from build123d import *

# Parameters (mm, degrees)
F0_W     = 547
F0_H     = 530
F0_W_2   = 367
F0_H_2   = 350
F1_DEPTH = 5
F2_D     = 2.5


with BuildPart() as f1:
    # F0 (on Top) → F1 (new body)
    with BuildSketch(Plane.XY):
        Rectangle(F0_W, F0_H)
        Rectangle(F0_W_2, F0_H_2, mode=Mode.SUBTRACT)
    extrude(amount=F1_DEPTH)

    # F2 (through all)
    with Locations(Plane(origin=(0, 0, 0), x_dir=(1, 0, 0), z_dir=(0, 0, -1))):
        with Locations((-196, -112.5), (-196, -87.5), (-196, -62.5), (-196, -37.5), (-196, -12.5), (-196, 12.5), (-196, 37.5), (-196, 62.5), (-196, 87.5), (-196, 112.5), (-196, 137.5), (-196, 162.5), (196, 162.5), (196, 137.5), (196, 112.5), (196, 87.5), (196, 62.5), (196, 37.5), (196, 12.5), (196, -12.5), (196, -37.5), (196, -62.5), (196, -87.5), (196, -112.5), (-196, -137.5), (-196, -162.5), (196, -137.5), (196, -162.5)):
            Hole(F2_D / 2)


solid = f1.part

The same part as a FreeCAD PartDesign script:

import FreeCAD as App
import Part
import Sketcher
from FreeCAD import Vector
Q = App.Units.Quantity

doc = App.newDocument("Part")
params = doc.addObject("Spreadsheet::Sheet", "Params")
for row, (alias, value) in enumerate([
    ("sketch1_width", "547 mm"),
    ("sketch1_width2", "367 mm"),
    ("sketch1_height", "530 mm"),
    ("sketch1_height2", "350 mm"),
    ("pad1_length", "5 mm"),
    ("sketch2_diameter", "2.5 mm"),
    ("hole_diameter", "2.5 mm"),
], start=1):
    params.set(f"A{row}", alias)
    params.set(f"B{row}", "=" + value)
    params.setAlias(f"B{row}", alias)

body = doc.addObject("PartDesign::Body", "Body")

sketch1 = body.newObject("Sketcher::SketchObject", "Sketch")
sketch1.AttachmentSupport = (doc.getObject("XY_Plane"), [""])
sketch1.MapMode = "FlatFace"
sketch1.addGeometry(Part.LineSegment(Vector(-274, 265, 0), Vector(-274, -265, 0)), False)
sketch1.addGeometry(Part.LineSegment(Vector(-274, -265, 0), Vector(274, -265, 0)), False)
sketch1.addGeometry(Part.LineSegment(Vector(274, -265, 0), Vector(274, 265, 0)), False)
sketch1.addGeometry(Part.LineSegment(Vector(274, 265, 0), Vector(-274, 265, 0)), False)
sketch1.addGeometry(Part.LineSegment(Vector(184, -175, 0), Vector(-184, -175, 0)), False)
sketch1.addGeometry(Part.LineSegment(Vector(-184, -175, 0), Vector(-184, 175, 0)), False)
sketch1.addGeometry(Part.LineSegment(Vector(-184, 175, 0), Vector(184, 175, 0)), False)
sketch1.addGeometry(Part.LineSegment(Vector(184, 175, 0), Vector(184, -175, 0)), False)
sketch1.addConstraint(Sketcher.Constraint("Coincident", 0, 2, 1, 1))
sketch1.addConstraint(Sketcher.Constraint("Coincident", 1, 2, 2, 1))
sketch1.addConstraint(Sketcher.Constraint("Coincident", 2, 2, 3, 1))
sketch1.addConstraint(Sketcher.Constraint("Coincident", 3, 2, 0, 1))
sketch1.addConstraint(Sketcher.Constraint("Coincident", 4, 2, 5, 1))
sketch1.addConstraint(Sketcher.Constraint("Coincident", 5, 2, 6, 1))
sketch1.addConstraint(Sketcher.Constraint("Coincident", 6, 2, 7, 1))
sketch1.addConstraint(Sketcher.Constraint("Coincident", 7, 2, 4, 1))
sketch1.addConstraint(Sketcher.Constraint("Vertical", 0))
sketch1.addConstraint(Sketcher.Constraint("Horizontal", 1))
sketch1.addConstraint(Sketcher.Constraint("Vertical", 2))
sketch1.addConstraint(Sketcher.Constraint("Horizontal", 3))
sketch1.addConstraint(Sketcher.Constraint("Horizontal", 4))
sketch1.addConstraint(Sketcher.Constraint("Vertical", 5))
sketch1.addConstraint(Sketcher.Constraint("Horizontal", 6))
sketch1.addConstraint(Sketcher.Constraint("Vertical", 7))
sketch1.addConstraint(Sketcher.Constraint("Symmetric", 0, 2, 2, 2, -1, 1))
sketch1.addConstraint(Sketcher.Constraint("Symmetric", 4, 2, 6, 2, -1, 1))
sketch1.addConstraint(Sketcher.Constraint("DistanceX", 1, 1, 1, 2, Q("547 mm")))
sketch1.addConstraint(Sketcher.Constraint("DistanceX", 4, 2, 4, 1, Q("367 mm")))
sketch1.addConstraint(Sketcher.Constraint("DistanceY", 0, 2, 0, 1, Q("530 mm")))
sketch1.addConstraint(Sketcher.Constraint("DistanceY", 5, 1, 5, 2, Q("350 mm")))
sketch1.setExpression("Constraints[18]", "Params.sketch1_width")
sketch1.setExpression("Constraints[19]", "Params.sketch1_width2")
sketch1.setExpression("Constraints[20]", "Params.sketch1_height")
sketch1.setExpression("Constraints[21]", "Params.sketch1_height2")
pad1 = body.newObject("PartDesign::Pad", "Pad")
pad1.Profile = sketch1
pad1.setExpression("Length", "Params.pad1_length")

sketch2 = body.newObject("Sketcher::SketchObject", "Sketch001")
sketch2.AttachmentSupport = (doc.getObject("XY_Plane"), [""])
sketch2.MapMode = "FlatFace"
sketch2.addGeometry(Part.Circle(Vector(-196, 112.5, 0), Vector(0, 0, 1), 1.2), False)
sketch2.addGeometry(Part.Circle(Vector(-196, 87.5, 0), Vector(0, 0, 1), 1.2), False)
sketch2.addGeometry(Part.Circle(Vector(-196, 62.5, 0), Vector(0, 0, 1), 1.2), False)
sketch2.addGeometry(Part.Circle(Vector(-196, 37.5, 0), Vector(0, 0, 1), 1.2), False)
sketch2.addGeometry(Part.Circle(Vector(-196, 12.5, 0), Vector(0, 0, 1), 1.2), False)
sketch2.addGeometry(Part.Circle(Vector(-196, -12.5, 0), Vector(0, 0, 1), 1.2), False)
sketch2.addGeometry(Part.Circle(Vector(-196, -37.5, 0), Vector(0, 0, 1), 1.2), False)
sketch2.addGeometry(Part.Circle(Vector(-196, -62.5, 0), Vector(0, 0, 1), 1.2), False)
sketch2.addGeometry(Part.Circle(Vector(-196, -87.5, 0), Vector(0, 0, 1), 1.2), False)
sketch2.addGeometry(Part.Circle(Vector(-196, -112.5, 0), Vector(0, 0, 1), 1.2), False)
sketch2.addGeometry(Part.Circle(Vector(-196, -137.5, 0), Vector(0, 0, 1), 1.2), False)
sketch2.addGeometry(Part.Circle(Vector(-196, -162.5, 0), Vector(0, 0, 1), 1.2), False)
sketch2.addGeometry(Part.Circle(Vector(196, -162.5, 0), Vector(0, 0, 1), 1.2), False)
sketch2.addGeometry(Part.Circle(Vector(196, -137.5, 0), Vector(0, 0, 1), 1.2), False)
sketch2.addGeometry(Part.Circle(Vector(196, -112.5, 0), Vector(0, 0, 1), 1.2), False)
sketch2.addGeometry(Part.Circle(Vector(196, -87.5, 0), Vector(0, 0, 1), 1.2), False)
sketch2.addGeometry(Part.Circle(Vector(196, -62.5, 0), Vector(0, 0, 1), 1.2), False)
sketch2.addGeometry(Part.Circle(Vector(196, -37.5, 0), Vector(0, 0, 1), 1.2), False)
sketch2.addGeometry(Part.Circle(Vector(196, -12.5, 0), Vector(0, 0, 1), 1.2), False)
sketch2.addGeometry(Part.Circle(Vector(196, 12.5, 0), Vector(0, 0, 1), 1.2), False)
sketch2.addGeometry(Part.Circle(Vector(196, 37.5, 0), Vector(0, 0, 1), 1.2), False)
sketch2.addGeometry(Part.Circle(Vector(196, 62.5, 0), Vector(0, 0, 1), 1.2), False)
sketch2.addGeometry(Part.Circle(Vector(196, 87.5, 0), Vector(0, 0, 1), 1.2), False)
sketch2.addGeometry(Part.Circle(Vector(196, 112.5, 0), Vector(0, 0, 1), 1.2), False)
sketch2.addGeometry(Part.Circle(Vector(-196, 137.5, 0), Vector(0, 0, 1), 1.2), False)
sketch2.addGeometry(Part.Circle(Vector(-196, 162.5, 0), Vector(0, 0, 1), 1.2), False)
sketch2.addGeometry(Part.Circle(Vector(196, 137.5, 0), Vector(0, 0, 1), 1.2), False)
sketch2.addGeometry(Part.Circle(Vector(196, 162.5, 0), Vector(0, 0, 1), 1.2), False)
sketch2.addConstraint(Sketcher.Constraint("Equal", 0, 1))
sketch2.addConstraint(Sketcher.Constraint("Equal", 1, 2))
sketch2.addConstraint(Sketcher.Constraint("Equal", 2, 3))
sketch2.addConstraint(Sketcher.Constraint("Equal", 3, 4))
sketch2.addConstraint(Sketcher.Constraint("Equal", 4, 5))
sketch2.addConstraint(Sketcher.Constraint("Equal", 5, 6))
sketch2.addConstraint(Sketcher.Constraint("Equal", 6, 7))
sketch2.addConstraint(Sketcher.Constraint("Equal", 7, 8))
sketch2.addConstraint(Sketcher.Constraint("Equal", 8, 9))
sketch2.addConstraint(Sketcher.Constraint("Equal", 9, 10))
sketch2.addConstraint(Sketcher.Constraint("Equal", 10, 11))
sketch2.addConstraint(Sketcher.Constraint("Equal", 11, 12))
sketch2.addConstraint(Sketcher.Constraint("Equal", 12, 13))
sketch2.addConstraint(Sketcher.Constraint("Equal", 13, 14))
sketch2.addConstraint(Sketcher.Constraint("Equal", 14, 15))
sketch2.addConstraint(Sketcher.Constraint("Equal", 15, 16))
sketch2.addConstraint(Sketcher.Constraint("Equal", 16, 17))
sketch2.addConstraint(Sketcher.Constraint("Equal", 17, 18))
sketch2.addConstraint(Sketcher.Constraint("Equal", 18, 19))
sketch2.addConstraint(Sketcher.Constraint("Equal", 19, 20))
sketch2.addConstraint(Sketcher.Constraint("Equal", 20, 21))
sketch2.addConstraint(Sketcher.Constraint("Equal", 21, 22))
sketch2.addConstraint(Sketcher.Constraint("Equal", 22, 23))
sketch2.addConstraint(Sketcher.Constraint("Equal", 23, 24))
sketch2.addConstraint(Sketcher.Constraint("Equal", 24, 25))
sketch2.addConstraint(Sketcher.Constraint("Equal", 25, 26))
sketch2.addConstraint(Sketcher.Constraint("Equal", 26, 27))
sketch2.addConstraint(Sketcher.Constraint("Symmetric", 0, 3, 14, 3, -1, 1))
sketch2.addConstraint(Sketcher.Constraint("Symmetric", 1, 3, 15, 3, -1, 1))
sketch2.addConstraint(Sketcher.Constraint("Symmetric", 2, 3, 16, 3, -1, 1))
sketch2.addConstraint(Sketcher.Constraint("Symmetric", 3, 3, 17, 3, -1, 1))
sketch2.addConstraint(Sketcher.Constraint("Symmetric", 4, 3, 18, 3, -1, 1))
sketch2.addConstraint(Sketcher.Constraint("Symmetric", 5, 3, 19, 3, -1, 1))
sketch2.addConstraint(Sketcher.Constraint("Symmetric", 6, 3, 20, 3, -1, 1))
sketch2.addConstraint(Sketcher.Constraint("Symmetric", 7, 3, 21, 3, -1, 1))
sketch2.addConstraint(Sketcher.Constraint("Symmetric", 8, 3, 22, 3, -1, 1))
sketch2.addConstraint(Sketcher.Constraint("Symmetric", 9, 3, 23, 3, -1, 1))
sketch2.addConstraint(Sketcher.Constraint("Symmetric", 13, 3, 24, 3, -1, 1))
sketch2.addConstraint(Sketcher.Constraint("Symmetric", 12, 3, 25, 3, -1, 1))
sketch2.addConstraint(Sketcher.Constraint("Symmetric", 10, 3, 26, 3, -1, 1))
sketch2.addConstraint(Sketcher.Constraint("Symmetric", 11, 3, 27, 3, -1, 1))
sketch2.addConstraint(Sketcher.Constraint("Symmetric", 11, 3, 12, 3, -2))
sketch2.addConstraint(Sketcher.Constraint("Symmetric", 10, 3, 13, 3, -2))
sketch2.addConstraint(Sketcher.Constraint("Symmetric", 9, 3, 14, 3, -2))
sketch2.addConstraint(Sketcher.Constraint("Symmetric", 8, 3, 15, 3, -2))
sketch2.addConstraint(Sketcher.Constraint("Symmetric", 7, 3, 16, 3, -2))
sketch2.addConstraint(Sketcher.Constraint("Symmetric", 6, 3, 17, 3, -2))
sketch2.addConstraint(Sketcher.Constraint("Symmetric", 5, 3, 18, 3, -2))
sketch2.addConstraint(Sketcher.Constraint("Vertical", 0, 3, 1, 3))
sketch2.addConstraint(Sketcher.Constraint("Vertical", 1, 3, 2, 3))
sketch2.addConstraint(Sketcher.Constraint("Vertical", 2, 3, 3, 3))
sketch2.addConstraint(Sketcher.Constraint("Vertical", 3, 3, 4, 3))
sketch2.addConstraint(Sketcher.Constraint("Vertical", 9, 3, 10, 3))
sketch2.addConstraint(Sketcher.Constraint("Vertical", 10, 3, 11, 3))
sketch2.addConstraint(Sketcher.Constraint("Diameter", 0, Q("2.5 mm")))
sketch2.addConstraint(Sketcher.Constraint("DistanceX", 0, 3, -1, 1, Q("196 mm")))
sketch2.addConstraint(Sketcher.Constraint("DistanceY", 1, 3, 0, 3, Q("25 mm")))
sketch2.addConstraint(Sketcher.Constraint("DistanceY", 2, 3, 1, 3, Q("25 mm")))
sketch2.addConstraint(Sketcher.Constraint("DistanceY", 3, 3, 2, 3, Q("25 mm")))
sketch2.addConstraint(Sketcher.Constraint("DistanceY", 4, 3, 3, 3, Q("25 mm")))
sketch2.addConstraint(Sketcher.Constraint("DistanceY", 5, 3, 4, 3, Q("25 mm")))
sketch2.addConstraint(Sketcher.Constraint("DistanceY", 10, 3, 9, 3, Q("25 mm")))
sketch2.addConstraint(Sketcher.Constraint("DistanceY", 11, 3, 10, 3, Q("25 mm")))
sketch2.setExpression("Constraints[54]", "Params.sketch2_diameter")
doc.recompute()
hole = body.newObject("PartDesign::Hole", "Hole")
hole.Profile = sketch2
hole.ThreadType = "None"
hole.setExpression("Diameter", "Params.hole_diameter")
hole.DepthType = "ThroughAll"
hole.Reversed = True

doc.recompute()
